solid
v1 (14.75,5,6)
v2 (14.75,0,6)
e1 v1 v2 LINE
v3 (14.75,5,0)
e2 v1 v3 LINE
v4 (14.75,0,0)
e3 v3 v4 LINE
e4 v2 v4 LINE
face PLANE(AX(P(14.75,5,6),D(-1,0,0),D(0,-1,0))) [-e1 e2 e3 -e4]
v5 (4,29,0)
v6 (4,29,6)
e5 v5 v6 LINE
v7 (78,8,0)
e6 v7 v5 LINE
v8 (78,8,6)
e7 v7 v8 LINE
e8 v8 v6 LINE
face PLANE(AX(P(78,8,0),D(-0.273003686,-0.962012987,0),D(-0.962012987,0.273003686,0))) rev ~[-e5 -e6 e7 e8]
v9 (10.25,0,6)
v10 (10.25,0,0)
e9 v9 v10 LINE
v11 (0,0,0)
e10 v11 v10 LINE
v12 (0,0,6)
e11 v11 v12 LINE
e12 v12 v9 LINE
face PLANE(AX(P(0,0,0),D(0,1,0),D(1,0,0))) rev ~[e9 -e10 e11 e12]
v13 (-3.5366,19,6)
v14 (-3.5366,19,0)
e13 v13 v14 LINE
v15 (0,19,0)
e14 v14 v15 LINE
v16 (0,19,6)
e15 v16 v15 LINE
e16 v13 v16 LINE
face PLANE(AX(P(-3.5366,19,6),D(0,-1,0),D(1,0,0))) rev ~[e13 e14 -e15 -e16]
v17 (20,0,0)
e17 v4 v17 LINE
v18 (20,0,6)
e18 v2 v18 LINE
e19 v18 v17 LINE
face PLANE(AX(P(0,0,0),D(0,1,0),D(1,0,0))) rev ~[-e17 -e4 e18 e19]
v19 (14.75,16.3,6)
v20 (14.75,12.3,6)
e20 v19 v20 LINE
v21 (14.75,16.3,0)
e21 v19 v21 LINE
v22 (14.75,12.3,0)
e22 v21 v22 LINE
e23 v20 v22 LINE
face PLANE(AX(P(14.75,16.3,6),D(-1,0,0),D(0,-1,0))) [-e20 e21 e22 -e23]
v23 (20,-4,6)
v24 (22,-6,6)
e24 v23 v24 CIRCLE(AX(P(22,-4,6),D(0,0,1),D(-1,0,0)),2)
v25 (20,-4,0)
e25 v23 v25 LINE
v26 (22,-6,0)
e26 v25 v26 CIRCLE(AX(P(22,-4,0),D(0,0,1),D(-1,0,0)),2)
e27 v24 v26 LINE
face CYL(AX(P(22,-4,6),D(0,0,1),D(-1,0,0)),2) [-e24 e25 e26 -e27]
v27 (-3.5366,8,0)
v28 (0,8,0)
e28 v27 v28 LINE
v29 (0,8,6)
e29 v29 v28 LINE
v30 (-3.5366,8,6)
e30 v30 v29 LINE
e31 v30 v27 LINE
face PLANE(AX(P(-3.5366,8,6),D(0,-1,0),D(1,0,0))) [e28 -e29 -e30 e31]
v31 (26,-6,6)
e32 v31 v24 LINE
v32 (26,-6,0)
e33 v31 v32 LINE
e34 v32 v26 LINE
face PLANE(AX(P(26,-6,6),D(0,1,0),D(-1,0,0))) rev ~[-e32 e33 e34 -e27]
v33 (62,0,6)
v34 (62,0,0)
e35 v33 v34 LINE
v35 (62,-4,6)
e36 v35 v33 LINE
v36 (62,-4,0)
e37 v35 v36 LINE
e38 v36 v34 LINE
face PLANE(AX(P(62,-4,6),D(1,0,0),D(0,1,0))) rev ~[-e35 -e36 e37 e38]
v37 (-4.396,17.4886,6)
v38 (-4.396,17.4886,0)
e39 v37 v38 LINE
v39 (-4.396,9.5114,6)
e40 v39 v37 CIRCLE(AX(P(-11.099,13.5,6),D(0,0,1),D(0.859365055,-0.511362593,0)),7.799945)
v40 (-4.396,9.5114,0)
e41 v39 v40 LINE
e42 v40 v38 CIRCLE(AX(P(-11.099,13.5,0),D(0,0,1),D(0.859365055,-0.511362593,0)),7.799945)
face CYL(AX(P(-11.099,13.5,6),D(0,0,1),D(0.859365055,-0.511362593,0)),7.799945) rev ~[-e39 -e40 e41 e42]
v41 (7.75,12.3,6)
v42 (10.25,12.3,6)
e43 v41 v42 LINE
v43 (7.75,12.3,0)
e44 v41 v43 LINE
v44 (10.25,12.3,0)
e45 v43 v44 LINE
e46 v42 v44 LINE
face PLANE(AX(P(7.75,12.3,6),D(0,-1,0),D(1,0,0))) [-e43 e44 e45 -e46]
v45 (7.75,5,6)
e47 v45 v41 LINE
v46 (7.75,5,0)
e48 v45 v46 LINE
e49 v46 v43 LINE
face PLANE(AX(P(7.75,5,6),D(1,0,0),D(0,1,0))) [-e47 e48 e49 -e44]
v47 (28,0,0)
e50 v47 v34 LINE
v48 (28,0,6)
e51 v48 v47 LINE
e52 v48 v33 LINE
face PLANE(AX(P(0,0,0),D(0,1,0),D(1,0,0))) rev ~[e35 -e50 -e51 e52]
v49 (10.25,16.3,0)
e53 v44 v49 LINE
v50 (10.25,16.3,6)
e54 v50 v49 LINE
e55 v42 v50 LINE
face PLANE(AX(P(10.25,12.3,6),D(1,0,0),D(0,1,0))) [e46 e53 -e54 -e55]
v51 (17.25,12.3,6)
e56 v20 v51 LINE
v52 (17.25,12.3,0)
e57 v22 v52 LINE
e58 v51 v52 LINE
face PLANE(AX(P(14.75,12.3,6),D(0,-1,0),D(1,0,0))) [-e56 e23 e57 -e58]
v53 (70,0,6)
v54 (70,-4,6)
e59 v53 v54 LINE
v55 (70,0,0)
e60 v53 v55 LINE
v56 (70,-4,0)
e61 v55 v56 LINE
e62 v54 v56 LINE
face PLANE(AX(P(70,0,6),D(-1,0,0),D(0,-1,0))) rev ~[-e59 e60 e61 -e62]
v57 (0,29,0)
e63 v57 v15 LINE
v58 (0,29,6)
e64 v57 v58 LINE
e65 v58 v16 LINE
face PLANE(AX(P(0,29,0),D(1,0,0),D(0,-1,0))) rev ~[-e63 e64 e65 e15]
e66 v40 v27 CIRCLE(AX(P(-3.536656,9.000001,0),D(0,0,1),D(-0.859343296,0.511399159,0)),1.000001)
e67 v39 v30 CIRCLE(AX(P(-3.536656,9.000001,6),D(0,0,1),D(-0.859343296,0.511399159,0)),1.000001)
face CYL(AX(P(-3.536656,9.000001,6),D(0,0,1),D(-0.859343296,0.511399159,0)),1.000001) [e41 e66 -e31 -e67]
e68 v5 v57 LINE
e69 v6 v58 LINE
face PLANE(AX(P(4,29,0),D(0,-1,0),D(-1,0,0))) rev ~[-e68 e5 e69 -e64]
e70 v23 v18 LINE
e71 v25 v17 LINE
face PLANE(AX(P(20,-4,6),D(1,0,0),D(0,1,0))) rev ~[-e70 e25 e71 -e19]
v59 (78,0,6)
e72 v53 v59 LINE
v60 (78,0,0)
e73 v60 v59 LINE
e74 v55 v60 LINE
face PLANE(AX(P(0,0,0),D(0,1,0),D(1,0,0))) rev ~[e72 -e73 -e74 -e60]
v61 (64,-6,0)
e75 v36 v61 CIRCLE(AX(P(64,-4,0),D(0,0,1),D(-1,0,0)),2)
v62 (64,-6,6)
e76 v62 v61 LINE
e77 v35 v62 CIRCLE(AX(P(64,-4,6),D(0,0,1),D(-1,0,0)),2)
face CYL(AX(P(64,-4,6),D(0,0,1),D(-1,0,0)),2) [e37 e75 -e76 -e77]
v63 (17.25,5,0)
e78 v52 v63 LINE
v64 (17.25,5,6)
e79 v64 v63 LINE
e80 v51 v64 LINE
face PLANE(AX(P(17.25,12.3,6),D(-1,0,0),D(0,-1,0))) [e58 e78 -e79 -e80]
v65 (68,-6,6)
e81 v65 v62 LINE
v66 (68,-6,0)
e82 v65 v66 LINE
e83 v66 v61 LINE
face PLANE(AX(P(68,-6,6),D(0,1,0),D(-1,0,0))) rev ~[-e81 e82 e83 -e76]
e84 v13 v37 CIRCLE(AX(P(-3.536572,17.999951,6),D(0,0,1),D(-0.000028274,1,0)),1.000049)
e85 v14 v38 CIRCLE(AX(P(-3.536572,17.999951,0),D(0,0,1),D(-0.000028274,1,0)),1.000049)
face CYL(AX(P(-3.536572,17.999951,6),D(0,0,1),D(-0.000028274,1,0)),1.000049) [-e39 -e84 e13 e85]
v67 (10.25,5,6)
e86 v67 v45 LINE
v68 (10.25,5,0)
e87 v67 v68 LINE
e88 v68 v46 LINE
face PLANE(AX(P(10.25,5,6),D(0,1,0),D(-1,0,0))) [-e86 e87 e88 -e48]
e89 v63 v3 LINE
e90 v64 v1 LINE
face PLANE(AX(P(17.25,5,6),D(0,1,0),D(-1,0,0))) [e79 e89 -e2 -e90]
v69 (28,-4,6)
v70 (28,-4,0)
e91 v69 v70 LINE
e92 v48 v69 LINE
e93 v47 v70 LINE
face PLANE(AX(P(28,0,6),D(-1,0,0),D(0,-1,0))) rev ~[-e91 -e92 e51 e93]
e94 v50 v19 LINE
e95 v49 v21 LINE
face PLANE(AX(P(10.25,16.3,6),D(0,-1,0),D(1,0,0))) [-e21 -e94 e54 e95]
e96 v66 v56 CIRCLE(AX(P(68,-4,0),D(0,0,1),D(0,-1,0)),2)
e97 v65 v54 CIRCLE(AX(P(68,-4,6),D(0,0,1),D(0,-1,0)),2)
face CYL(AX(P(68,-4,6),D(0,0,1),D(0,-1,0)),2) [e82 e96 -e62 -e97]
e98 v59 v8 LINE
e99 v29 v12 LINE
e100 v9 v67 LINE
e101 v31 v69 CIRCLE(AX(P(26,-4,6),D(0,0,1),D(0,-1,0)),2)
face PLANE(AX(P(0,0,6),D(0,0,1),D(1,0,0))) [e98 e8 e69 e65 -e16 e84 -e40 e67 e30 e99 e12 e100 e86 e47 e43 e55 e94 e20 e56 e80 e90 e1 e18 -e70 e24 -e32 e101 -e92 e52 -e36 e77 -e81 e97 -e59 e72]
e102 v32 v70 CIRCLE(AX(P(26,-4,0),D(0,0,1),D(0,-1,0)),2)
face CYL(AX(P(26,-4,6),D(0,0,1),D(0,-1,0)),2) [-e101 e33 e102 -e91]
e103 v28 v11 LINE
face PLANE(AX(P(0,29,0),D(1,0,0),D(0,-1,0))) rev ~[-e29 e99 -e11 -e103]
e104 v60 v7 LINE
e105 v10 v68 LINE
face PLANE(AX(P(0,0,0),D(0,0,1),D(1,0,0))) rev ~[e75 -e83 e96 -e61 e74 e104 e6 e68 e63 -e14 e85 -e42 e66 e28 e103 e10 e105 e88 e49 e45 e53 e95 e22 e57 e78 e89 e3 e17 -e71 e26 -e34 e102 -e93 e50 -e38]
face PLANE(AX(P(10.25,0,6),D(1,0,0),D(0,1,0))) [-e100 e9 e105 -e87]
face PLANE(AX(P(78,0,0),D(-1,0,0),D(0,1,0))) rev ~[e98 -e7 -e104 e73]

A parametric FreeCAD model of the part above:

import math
import FreeCAD as App
import Part
import Sketcher

V = App.Vector
Q = App.Units.Quantity

doc = App.newDocument("Part")
body = doc.addObject("PartDesign::Body", "Body")

sketch1 = body.newObject("Sketcher::SketchObject", "Sketch")
sketch1.AttachmentSupport = (doc.getObject("XY_Plane"), [""])
sketch1.MapMode = "FlatFace"
sketch1.addGeometry([
    Part.LineSegment(V(4, 29, 0), V(0, 29, 0)),
    Part.LineSegment(V(0, 29, 0), V(0, 0, 0)),
    Part.LineSegment(V(0, 0, 0), V(78, 0, 0)),
    Part.LineSegment(V(78, 0, 0), V(78, 8, 0)),
    Part.LineSegment(V(78, 8, 0), V(4, 29, 0)),
], False)
sketch1.addConstraint([
    Sketcher.Constraint("Coincident", 0, 2, 1, 1),
    Sketcher.Constraint("Coincident", 1, 2, 2, 1),
    Sketcher.Constraint("Coincident", 2, 2, 3, 1),
    Sketcher.Constraint("Coincident", 3, 2, 4, 1),
    Sketcher.Constraint("Coincident", 4, 2, 0, 1),
    Sketcher.Constraint("Horizontal", 0),
    Sketcher.Constraint("Vertical", 1),
    Sketcher.Constraint("Horizontal", 2),
    Sketcher.Constraint("Vertical", 3),
    Sketcher.Constraint("Coincident", 1, 2, -1, 1),
    Sketcher.Constraint("DistanceX", 0, 2, 0, 1, Q("4 mm")),
    Sketcher.Constraint("DistanceX", 2, 1, 2, 2, Q("78 mm")),
    Sketcher.Constraint("DistanceY", 1, 2, 1, 1, Q("29 mm")),
    Sketcher.Constraint("DistanceY", 3, 1, 3, 2, Q("8 mm")),
])
pad1 = body.newObject("PartDesign::Pad", "Pad")
pad1.Profile = sketch1
pad1.Length = 6

sketch2 = body.newObject("Sketcher::SketchObject", "Sketch001")
sketch2.AttachmentSupport = (doc.getObject("XY_Plane"), [""])
sketch2.MapMode = "FlatFace"
sketch2.AttachmentOffset = App.Placement(V(0, 0, 6), App.Rotation())
sketch2.addGeometry([
    Part.LineSegment(V(70, 0, 0), V(62, 0, 0)),
    Part.LineSegment(V(62, 0, 0), V(62, -4, 0)),
    Part.ArcOfCircle(Part.Circle(V(64, -4, 0), V(0, 0, 1), 2), math.radians(180), math.radians(270)),
    Part.LineSegment(V(64, -6, 0), V(68, -6, 0)),
    Part.ArcOfCircle(Part.Circle(V(68, -4, 0), V(0, 0, 1), 2), math.radians(-90), math.radians(0)),
    Part.LineSegment(V(70, -4, 0), V(70, 0, 0)),
    Part.LineSegment(V(28, 0, 0), V(20, 0, 0)),
    Part.LineSegment(V(20, 0, 0), V(20, -4, 0)),
    Part.ArcOfCircle(Part.Circle(V(22, -4, 0), V(0, 0, 1), 2), math.radians(180), math.radians(270)),
    Part.LineSegment(V(22, -6, 0), V(26, -6, 0)),
    Part.ArcOfCircle(Part.Circle(V(26, -4, 0), V(0, 0, 1), 2), math.radians(-90), math.radians(0)),
    Part.LineSegment(V(28, -4, 0), V(28, 0, 0)),
    Part.LineSegment(V(0, 8, 0), V(0, 19, 0)),
    Part.LineSegment(V(0, 19, 0), V(-3.5366, 19, 0)),
    Part.ArcOfCircle(Part.Circle(V(-3.5366, 18, 0), V(0, 0, 1), 1), math.radians(90), math.radians(210.755452)),
    Part.ArcOfCircle(Part.Circle(V(-11.099, 13.5, 0), V(0, 0, 1), 7.799945), math.radians(-30.754634), math.radians(30.754634)),
    Part.ArcOfCircle(Part.Circle(V(-3.5366, 9, 0), V(0, 0, 1), 1.000049), math.radians(149.244548), math.radians(270)),
    Part.LineSegment(V(-3.5366, 8, 0), V(0, 8, 0)),
], False)
sketch2.addConstraint([
    Sketcher.Constraint("Coincident", 0, 2, 1, 1),
    Sketcher.Constraint("Tangent", 1, 2, 2, 1),
    Sketcher.Constraint("Tangent", 2, 2, 3, 1),
    Sketcher.Constraint("Tangent", 3, 2, 4, 1),
    Sketcher.Constraint("Tangent", 4, 2, 5, 1),
    Sketcher.Constraint("Coincident", 5, 2, 0, 1),
    Sketcher.Constraint("Coincident", 6, 2, 7, 1),
    Sketcher.Constraint("Tangent", 7, 2, 8, 1),
    Sketcher.Constraint("Tangent", 8, 2, 9, 1),
    Sketcher.Constraint("Tangent", 9, 2, 10, 1),
    Sketcher.Constraint("Tangent", 10, 2, 11, 1),
    Sketcher.Constraint("Coincident", 11, 2, 6, 1),
    Sketcher.Constraint("Coincident", 12, 2, 13, 1),
    Sketcher.Constraint("Tangent", 13, 2, 14, 1),
    Sketcher.Constraint("Tangent", 14, 2, 15, 2),
    Sketcher.Constraint("Tangent", 15, 1, 16, 1),
    Sketcher.Constraint("Tangent", 16, 2, 17, 1),
    Sketcher.Constraint("Coincident", 17, 2, 12, 1),
    Sketcher.Constraint("Horizontal", 0),
    Sketcher.Constraint("Vertical", 1),
    Sketcher.Constraint("Horizontal", 3),
    Sketcher.Constraint("Vertical", 5),
    Sketcher.Constraint("Horizontal", 6),
    Sketcher.Constraint("Vertical", 7),
    Sketcher.Constraint("Horizontal", 9),
    Sketcher.Constraint("Vertical", 11),
    Sketcher.Constraint("Vertical", 12),
    Sketcher.Constraint("Horizontal", 13),
    Sketcher.Constraint("Horizontal", 17),
    Sketcher.Constraint("Equal", 2, 4),
    Sketcher.Constraint("Equal", 4, 8),
    Sketcher.Constraint("Equal", 8, 10),
    Sketcher.Constraint("Equal", 14, 16),
    Sketcher.Constraint("PointOnObject", 0, 2, -1),
    Sketcher.Constraint("PointOnObject", 6, 2, -1),
    Sketcher.Constraint("PointOnObject", 12, 2, -2),
    Sketcher.Constraint("Horizontal", 4, 3, 8, 3),
    Sketcher.Constraint("Vertical", 14, 3, 16, 3),
    Sketcher.Constraint("Equal", 0, 6),
    Sketcher.Constraint("Equal", 9, 1),
    Sketcher.Constraint("Radius", 2, Q("2 mm")),
    Sketcher.Constraint("Radius", 14, Q("1 mm")),
    Sketcher.Constraint("Radius", 15, Q("7.8 mm")),
    Sketcher.Constraint("DistanceX", 0, 2, 0, 1, Q("8 mm")),
    Sketcher.Constraint("DistanceY", 12, 1, 12, 2, Q("11 mm")),
    Sketcher.Constraint("DistanceX", -1, 1, 6, 2, Q("20 mm")),
    Sketcher.Constraint("DistanceY", -1, 1, 16, 2, Q("8 mm")),
    Sketcher.Constraint("DistanceX", -1, 1, 2, 3, Q("64 mm")),
    Sketcher.Constraint("DistanceX", 13, 2, 13, 1, Q("3.5366 mm")),
])
pad2 = body.newObject("PartDesign::Pad", "Pad001")
pad2.Profile = sketch2
pad2.Length = 6
pad2.Reversed = True

sketch3 = body.newObject("Sketcher::SketchObject", "Sketch002")
sketch3.AttachmentSupport = (doc.getObject("XY_Plane"), [""])
sketch3.MapMode = "FlatFace"
sketch3.AttachmentOffset = App.Placement(V(0, 0, 6), App.Rotation())
sketch3.addGeometry([
    Part.LineSegment(V(10.25, 5, 0), V(10.25, 0, 0)),
    Part.LineSegment(V(10.25, 0, 0), V(14.75, 0, 0)),
    Part.LineSegment(V(14.75, 0, 0), V(14.75, 5, 0)),
    Part.LineSegment(V(14.75, 5, 0), V(17.25, 5, 0)),
    Part.LineSegment(V(17.25, 5, 0), V(17.25, 12.3, 0)),
    Part.LineSegment(V(17.25, 12.3, 0), V(14.75, 12.3, 0)),
    Part.LineSegment(V(14.75, 12.3, 0), V(14.75, 16.3, 0)),
    Part.LineSegment(V(14.75, 16.3, 0), V(10.25, 16.3, 0)),
    Part.LineSegment(V(10.25, 16.3, 0), V(10.25, 12.3, 0)),
    Part.LineSegment(V(10.25, 12.3, 0), V(7.75, 12.3, 0)),
    Part.LineSegment(V(7.75, 12.3, 0), V(7.75, 5, 0)),
    Part.LineSegment(V(7.75, 5, 0), V(10.25, 5, 0)),
], False)
sketch3.addConstraint([
    Sketcher.Constraint("Coincident", 0, 2, 1, 1),
    Sketcher.Constraint("Coincident", 1, 2, 2, 1),
    Sketcher.Constraint("Coincident", 2, 2, 3, 1),
    Sketcher.Constraint("Coincident", 3, 2, 4, 1),
    Sketcher.Constraint("Coincident", 4, 2, 5, 1),
    Sketcher.Constraint("Coincident", 5, 2, 6, 1),
    Sketcher.Constraint("Coincident", 6, 2, 7, 1),
    Sketcher.Constraint("Coincident", 7, 2, 8, 1),
    Sketcher.Constraint("Coincident", 8, 2, 9, 1),
    Sketcher.Constraint("Coincident", 9, 2, 10, 1),
    Sketcher.Constraint("Coincident", 10, 2, 11, 1),
    Sketcher.Constraint("Coincident", 11, 2, 0, 1),
    Sketcher.Constraint("Vertical", 0),
    Sketcher.Constraint("Horizontal", 1),
    Sketcher.Constraint("Vertical", 2),
    Sketcher.Constraint("Horizontal", 3),
    Sketcher.Constraint("Vertical", 4),
    Sketcher.Constraint("Horizontal", 5),
    Sketcher.Constraint("Vertical", 6),
    Sketcher.Constraint("Horizontal", 7),
    Sketcher.Constraint("Vertical", 8),
    Sketcher.Constraint("Horizontal", 9),
    Sketcher.Constraint("Vertical", 10),
    Sketcher.Constraint("Horizontal", 11),
    Sketcher.Constraint("PointOnObject", 0, 2, -1),
    Sketcher.Constraint("Horizontal", 5, 2, 8, 2),
    Sketcher.Constraint("Horizontal", 3, 2, 10, 2),
    Sketcher.Constraint("Vertical", 2, 2, 5, 2),
    Sketcher.Constraint("Vertical", 0, 2, 7, 2),
    Sketcher.Constraint("Equal", 5, 9),
    Sketcher.Constraint("DistanceY", 0, 2, 0, 1, Q("5 mm")),
    Sketcher.Constraint("DistanceY", 6, 1, 6, 2, Q("4 mm")),
    Sketcher.Constraint("DistanceX", 1, 1, 1, 2, Q("4.5 mm")),
    Sketcher.Constraint("DistanceX", 3, 1, 3, 2, Q("2.5 mm")),
    Sketcher.Constraint("DistanceY", 4, 1, 4, 2, Q("7.3 mm")),
    Sketcher.Constraint("DistanceX", -1, 1, 0, 2, Q("10.25 mm")),
])
pocket1 = body.newObject("PartDesign::Pocket", "Pocket")
pocket1.Profile = sketch3
pocket1.Type = "ThroughAll"

doc.recompute()
